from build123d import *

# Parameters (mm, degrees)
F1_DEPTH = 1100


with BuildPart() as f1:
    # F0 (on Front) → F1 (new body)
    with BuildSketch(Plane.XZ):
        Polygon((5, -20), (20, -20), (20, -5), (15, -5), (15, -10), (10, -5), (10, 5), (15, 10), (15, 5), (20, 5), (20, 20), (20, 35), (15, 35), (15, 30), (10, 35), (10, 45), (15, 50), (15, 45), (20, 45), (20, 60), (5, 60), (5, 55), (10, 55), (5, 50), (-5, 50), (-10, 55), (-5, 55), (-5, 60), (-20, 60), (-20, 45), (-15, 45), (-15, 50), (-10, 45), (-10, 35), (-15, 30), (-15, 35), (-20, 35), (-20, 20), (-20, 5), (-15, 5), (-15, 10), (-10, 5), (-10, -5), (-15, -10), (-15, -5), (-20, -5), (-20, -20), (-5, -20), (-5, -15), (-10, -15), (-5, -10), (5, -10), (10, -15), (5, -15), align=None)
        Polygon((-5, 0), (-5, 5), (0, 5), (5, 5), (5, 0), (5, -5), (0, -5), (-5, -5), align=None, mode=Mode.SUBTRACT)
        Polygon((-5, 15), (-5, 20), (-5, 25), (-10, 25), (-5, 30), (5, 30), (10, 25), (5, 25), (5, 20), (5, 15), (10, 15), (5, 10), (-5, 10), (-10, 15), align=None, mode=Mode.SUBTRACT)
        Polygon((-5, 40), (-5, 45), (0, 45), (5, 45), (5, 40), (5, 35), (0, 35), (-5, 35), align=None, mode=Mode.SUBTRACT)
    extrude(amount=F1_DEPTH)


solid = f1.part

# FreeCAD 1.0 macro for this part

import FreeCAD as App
import Part
import Sketcher

doc = App.newDocument("Part")
body = doc.addObject("PartDesign::Body", "Body")

sketch1 = doc.addObject("Sketcher::SketchObject", "Sketch")
body.addObject(sketch1)
sketch1.AttachmentSupport = (doc.XZ_Plane, [""])
sketch1.MapMode = "FlatFace"
sketch1.addGeometry([
    Part.LineSegment(App.Vector(5, -20, 0), App.Vector(20, -20, 0)),
    Part.LineSegment(App.Vector(20, -20, 0), App.Vector(20, -5, 0)),
    Part.LineSegment(App.Vector(20, -5, 0), App.Vector(15, -5, 0)),
    Part.LineSegment(App.Vector(15, -5, 0), App.Vector(15, -10, 0)),
    Part.LineSegment(App.Vector(15, -10, 0), App.Vector(10, -5, 0)),
    Part.LineSegment(App.Vector(10, -5, 0), App.Vector(10, 5, 0)),
    Part.LineSegment(App.Vector(10, 5, 0), App.Vector(15, 10, 0)),
    Part.LineSegment(App.Vector(15, 10, 0), App.Vector(15, 5, 0)),
    Part.LineSegment(App.Vector(15, 5, 0), App.Vector(20, 5, 0)),
    Part.LineSegment(App.Vector(20, 5, 0), App.Vector(20, 35, 0)),
    Part.LineSegment(App.Vector(20, 35, 0), App.Vector(15, 35, 0)),
    Part.LineSegment(App.Vector(15, 35, 0), App.Vector(15, 30, 0)),
    Part.LineSegment(App.Vector(15, 30, 0), App.Vector(10, 35, 0)),
    Part.LineSegment(App.Vector(10, 35, 0), App.Vector(10, 45, 0)),
    Part.LineSegment(App.Vector(10, 45, 0), App.Vector(15, 50, 0)),
    Part.LineSegment(App.Vector(15, 50, 0), App.Vector(15, 45, 0)),
    Part.LineSegment(App.Vector(15, 45, 0), App.Vector(20, 45, 0)),
    Part.LineSegment(App.Vector(20, 45, 0), App.Vector(20, 60, 0)),
    Part.LineSegment(App.Vector(20, 60, 0), App.Vector(5, 60, 0)),
    Part.LineSegment(App.Vector(5, 60, 0), App.Vector(5, 55, 0)),
    Part.LineSegment(App.Vector(5, 55, 0), App.Vector(10, 55, 0)),
    Part.LineSegment(App.Vector(10, 55, 0), App.Vector(5, 50, 0)),
    Part.LineSegment(App.Vector(5, 50, 0), App.Vector(-5, 50, 0)),
    Part.LineSegment(App.Vector(-5, 50, 0), App.Vector(-10, 55, 0)),
    Part.LineSegment(App.Vector(-10, 55, 0), App.Vector(-5, 55, 0)),
    Part.LineSegment(App.Vector(-5, 55, 0), App.Vector(-5, 60, 0)),
    Part.LineSegment(App.Vector(-5, 60, 0), App.Vector(-20, 60, 0)),
    Part.LineSegment(App.Vector(-20, 60, 0), App.Vector(-20, 45, 0)),
    Part.LineSegment(App.Vector(-20, 45, 0), App.Vector(-15, 45, 0)),
    Part.LineSegment(App.Vector(-15, 45, 0), App.Vector(-15, 50, 0)),
    Part.LineSegment(App.Vector(-15, 50, 0), App.Vector(-10, 45, 0)),
    Part.LineSegment(App.Vector(-10, 45, 0), App.Vector(-10, 35, 0)),
    Part.LineSegment(App.Vector(-10, 35, 0), App.Vector(-15, 30, 0)),
    Part.LineSegment(App.Vector(-15, 30, 0), App.Vector(-15, 35, 0)),
    Part.LineSegment(App.Vector(-15, 35, 0), App.Vector(-20, 35, 0)),
    Part.LineSegment(App.Vector(-20, 35, 0), App.Vector(-20, 5, 0)),
    Part.LineSegment(App.Vector(-20, 5, 0), App.Vector(-15, 5, 0)),
    Part.LineSegment(App.Vector(-15, 5, 0), App.Vector(-15, 10, 0)),
    Part.LineSegment(App.Vector(-15, 10, 0), App.Vector(-10, 5, 0)),
    Part.LineSegment(App.Vector(-10, 5, 0), App.Vector(-10, -5, 0)),
    Part.LineSegment(App.Vector(-10, -5, 0), App.Vector(-15, -10, 0)),
    Part.LineSegment(App.Vector(-15, -10, 0), App.Vector(-15, -5, 0)),
    Part.LineSegment(App.Vector(-15, -5, 0), App.Vector(-20, -5, 0)),
    Part.LineSegment(App.Vector(-20, -5, 0), App.Vector(-20, -20, 0)),
    Part.LineSegment(App.Vector(-20, -20, 0), App.Vector(-5, -20, 0)),
    Part.LineSegment(App.Vector(-5, -20, 0), App.Vector(-5, -15, 0)),
    Part.LineSegment(App.Vector(-5, -15, 0), App.Vector(-10, -15, 0)),
    Part.LineSegment(App.Vector(-10, -15, 0), App.Vector(-5, -10, 0)),
    Part.LineSegment(App.Vector(-5, -10, 0), App.Vector(5, -10, 0)),
    Part.LineSegment(App.Vector(5, -10, 0), App.Vector(10, -15, 0)),
    Part.LineSegment(App.Vector(10, -15, 0), App.Vector(5, -15, 0)),
    Part.LineSegment(App.Vector(5, -15, 0), App.Vector(5, -20, 0)),
    Part.LineSegment(App.Vector(-5, -5, 0), App.Vector(-5, 5, 0)),
    Part.LineSegment(App.Vector(-5, 5, 0), App.Vector(5, 5, 0)),
    Part.LineSegment(App.Vector(5, 5, 0), App.Vector(5, -5, 0)),
    Part.LineSegment(App.Vector(5, -5, 0), App.Vector(-5, -5, 0)),
    Part.LineSegment(App.Vector(-10, 15, 0), App.Vector(-5, 15, 0)),
    Part.LineSegment(App.Vector(-5, 15, 0), App.Vector(-5, 25, 0)),
    Part.LineSegment(App.Vector(-5, 25, 0), App.Vector(-10, 25, 0)),
    Part.LineSegment(App.Vector(-10, 25, 0), App.Vector(-5, 30, 0)),
    Part.LineSegment(App.Vector(-5, 30, 0), App.Vector(5, 30, 0)),
    Part.LineSegment(App.Vector(5, 30, 0), App.Vector(10, 25, 0)),
    Part.LineSegment(App.Vector(10, 25, 0), App.Vector(5, 25, 0)),
    Part.LineSegment(App.Vector(5, 25, 0), App.Vector(5, 15, 0)),
    Part.LineSegment(App.Vector(5, 15, 0), App.Vector(10, 15, 0)),
    Part.LineSegment(App.Vector(10, 15, 0), App.Vector(5, 10, 0)),
    Part.LineSegment(App.Vector(5, 10, 0), App.Vector(-5, 10, 0)),
    Part.LineSegment(App.Vector(-5, 10, 0), App.Vector(-10, 15, 0)),
    Part.LineSegment(App.Vector(-5, 35, 0), App.Vector(-5, 45, 0)),
    Part.LineSegment(App.Vector(-5, 45, 0), App.Vector(5, 45, 0)),
    Part.LineSegment(App.Vector(5, 45, 0), App.Vector(5, 35, 0)),
    Part.LineSegment(App.Vector(5, 35, 0), App.Vector(-5, 35, 0)),
], False)
sketch1.addConstraint([
    Sketcher.Constraint("Coincident", 0, 2, 1, 1),
    Sketcher.Constraint("Coincident", 1, 2, 2, 1),
    Sketcher.Constraint("Coincident", 2, 2, 3, 1),
    Sketcher.Constraint("Coincident", 3, 2, 4, 1),
    Sketcher.Constraint("Coincident", 4, 2, 5, 1),
    Sketcher.Constraint("Coincident", 5, 2, 6, 1),
    Sketcher.Constraint("Coincident", 6, 2, 7, 1),
    Sketcher.Constraint("Coincident", 7, 2, 8, 1),
    Sketcher.Constraint("Coincident", 8, 2, 9, 1),
    Sketcher.Constraint("Coincident", 9, 2, 10, 1),
    Sketcher.Constraint("Coincident", 10, 2, 11, 1),
    Sketcher.Constraint("Coincident", 11, 2, 12, 1),
    Sketcher.Constraint("Coincident", 12, 2, 13, 1),
    Sketcher.Constraint("Coincident", 13, 2, 14, 1),
    Sketcher.Constraint("Coincident", 14, 2, 15, 1),
    Sketcher.Constraint("Coincident", 15, 2, 16, 1),
    Sketcher.Constraint("Coincident", 16, 2, 17, 1),
    Sketcher.Constraint("Coincident", 17, 2, 18, 1),
    Sketcher.Constraint("Coincident", 18, 2, 19, 1),
    Sketcher.Constraint("Coincident", 19, 2, 20, 1),
    Sketcher.Constraint("Coincident", 20, 2, 21, 1),
    Sketcher.Constraint("Coincident", 21, 2, 22, 1),
    Sketcher.Constraint("Coincident", 22, 2, 23, 1),
    Sketcher.Constraint("Coincident", 23, 2, 24, 1),
    Sketcher.Constraint("Coincident", 24, 2, 25, 1),
    Sketcher.Constraint("Coincident", 25, 2, 26, 1),
    Sketcher.Constraint("Coincident", 26, 2, 27, 1),
    Sketcher.Constraint("Coincident", 27, 2, 28, 1),
    Sketcher.Constraint("Coincident", 28, 2, 29, 1),
    Sketcher.Constraint("Coincident", 29, 2, 30, 1),
    Sketcher.Constraint("Coincident", 30, 2, 31, 1),
    Sketcher.Constraint("Coincident", 31, 2, 32, 1),
    Sketcher.Constraint("Coincident", 32, 2, 33, 1),
    Sketcher.Constraint("Coincident", 33, 2, 34, 1),
    Sketcher.Constraint("Coincident", 34, 2, 35, 1),
    Sketcher.Constraint("Coincident", 35, 2, 36, 1),
    Sketcher.Constraint("Coincident", 36, 2, 37, 1),
    Sketcher.Constraint("Coincident", 37, 2, 38, 1),
    Sketcher.Constraint("Coincident", 38, 2, 39, 1),
    Sketcher.Constraint("Coincident", 39, 2, 40, 1),
    Sketcher.Constraint("Coincident", 40, 2, 41, 1),
    Sketcher.Constraint("Coincident", 41, 2, 42, 1),
    Sketcher.Constraint("Coincident", 42, 2, 43, 1),
    Sketcher.Constraint("Coincident", 43, 2, 44, 1),
    Sketcher.Constraint("Coincident", 44, 2, 45, 1),
    Sketcher.Constraint("Coincident", 45, 2, 46, 1),
    Sketcher.Constraint("Coincident", 46, 2, 47, 1),
    Sketcher.Constraint("Coincident", 47, 2, 48, 1),
    Sketcher.Constraint("Coincident", 48, 2, 49, 1),
    Sketcher.Constraint("Coincident", 49, 2, 50, 1),
    Sketcher.Constraint("Coincident", 50, 2, 51, 1),
    Sketcher.Constraint("Coincident", 51, 2, 0, 1),
    Sketcher.Constraint("Coincident", 52, 2, 53, 1),
    Sketcher.Constraint("Coincident", 53, 2, 54, 1),
    Sketcher.Constraint("Coincident", 54, 2, 55, 1),
    Sketcher.Constraint("Coincident", 55, 2, 52, 1),
    Sketcher.Constraint("Coincident", 56, 2, 57, 1),
    Sketcher.Constraint("Coincident", 57, 2, 58, 1),
    Sketcher.Constraint("Coincident", 58, 2, 59, 1),
    Sketcher.Constraint("Coincident", 59, 2, 60, 1),
    Sketcher.Constraint("Coincident", 60, 2, 61, 1),
    Sketcher.Constraint("Coincident", 61, 2, 62, 1),
    Sketcher.Constraint("Coincident", 62, 2, 63, 1),
    Sketcher.Constraint("Coincident", 63, 2, 64, 1),
    Sketcher.Constraint("Coincident", 64, 2, 65, 1),
    Sketcher.Constraint("Coincident", 65, 2, 66, 1),
    Sketcher.Constraint("Coincident", 66, 2, 67, 1),
    Sketcher.Constraint("Coincident", 67, 2, 56, 1),
    Sketcher.Constraint("Coincident", 68, 2, 69, 1),
    Sketcher.Constraint("Coincident", 69, 2, 70, 1),
    Sketcher.Constraint("Coincident", 70, 2, 71, 1),
    Sketcher.Constraint("Coincident", 71, 2, 68, 1),
    Sketcher.Constraint("Horizontal", 0),
    Sketcher.Constraint("Vertical", 1),
    Sketcher.Constraint("Horizontal", 2),
    Sketcher.Constraint("Vertical", 3),
    Sketcher.Constraint("Vertical", 5),
    Sketcher.Constraint("Vertical", 7),
    Sketcher.Constraint("Horizontal", 8),
    Sketcher.Constraint("Vertical", 9),
    Sketcher.Constraint("Horizontal", 10),
    Sketcher.Constraint("Vertical", 11),
    Sketcher.Constraint("Vertical", 13),
    Sketcher.Constraint("Vertical", 15),
    Sketcher.Constraint("Horizontal", 16),
    Sketcher.Constraint("Vertical", 17),
    Sketcher.Constraint("Horizontal", 18),
    Sketcher.Constraint("Vertical", 19),
    Sketcher.Constraint("Horizontal", 20),
    Sketcher.Constraint("Horizontal", 22),
    Sketcher.Constraint("Horizontal", 24),
    Sketcher.Constraint("Vertical", 25),
    Sketcher.Constraint("Horizontal", 26),
    Sketcher.Constraint("Vertical", 27),
    Sketcher.Constraint("Horizontal", 28),
    Sketcher.Constraint("Vertical", 29),
    Sketcher.Constraint("Vertical", 31),
    Sketcher.Constraint("Vertical", 33),
    Sketcher.Constraint("Horizontal", 34),
    Sketcher.Constraint("Vertical", 35),
    Sketcher.Constraint("Horizontal", 36),
    Sketcher.Constraint("Vertical", 37),
    Sketcher.Constraint("Vertical", 39),
    Sketcher.Constraint("Vertical", 41),
    Sketcher.Constraint("Horizontal", 42),
    Sketcher.Constraint("Vertical", 43),
    Sketcher.Constraint("Horizontal", 44),
    Sketcher.Constraint("Vertical", 45),
    Sketcher.Constraint("Horizontal", 46),
    Sketcher.Constraint("Horizontal", 48),
    Sketcher.Constraint("Horizontal", 50),
    Sketcher.Constraint("Vertical", 51),
    Sketcher.Constraint("Vertical", 52),
    Sketcher.Constraint("Horizontal", 53),
    Sketcher.Constraint("Vertical", 54),
    Sketcher.Constraint("Horizontal", 55),
    Sketcher.Constraint("Horizontal", 56),
    Sketcher.Constraint("Vertical", 57),
    Sketcher.Constraint("Horizontal", 58),
    Sketcher.Constraint("Horizontal", 60),
    Sketcher.Constraint("Horizontal", 62),
    Sketcher.Constraint("Vertical", 63),
    Sketcher.Constraint("Horizontal", 64),
    Sketcher.Constraint("Horizontal", 66),
    Sketcher.Constraint("Vertical", 68),
    Sketcher.Constraint("Horizontal", 69),
    Sketcher.Constraint("Vertical", 70),
    Sketcher.Constraint("Horizontal", 71),
    Sketcher.Constraint("Symmetric", 1, 2, 35, 2, -1, 1),
    Sketcher.Constraint("Symmetric", 3, 2, 37, 2, -1, 1),
    Sketcher.Constraint("Symmetric", 4, 2, 38, 2, -1, 1),
    Sketcher.Constraint("Symmetric", 6, 2, 40, 2, -1, 1),
    Sketcher.Constraint("Symmetric", 8, 2, 42, 2, -1, 1),
    Sketcher.Constraint("Symmetric", 52, 2, 54, 2, -1, 1),
    Sketcher.Constraint("Symmetric", 50, 2, 56, 2, -1, 1),
    Sketcher.Constraint("Symmetric", 45, 2, 63, 2, -1, 1),
    Sketcher.Constraint("Symmetric", 47, 2, 65, 2, -1, 1),
    Sketcher.Constraint("Symmetric", 20, 2, 23, 2, -2),
    Sketcher.Constraint("Symmetric", 18, 2, 25, 2, -2),
    Sketcher.Constraint("Symmetric", 16, 2, 27, 2, -2),
    Sketcher.Constraint("Symmetric", 14, 2, 29, 2, -2),
    Sketcher.Constraint("Symmetric", 13, 2, 30, 2, -2),
    Sketcher.Constraint("Symmetric", 11, 2, 32, 2, -2),
    Sketcher.Constraint("Symmetric", 9, 2, 34, 2, -2),
    Sketcher.Constraint("Symmetric", 7, 2, 36, 2, -2),
    Sketcher.Constraint("Symmetric", 46, 2, 49, 2, -2),
    Sketcher.Constraint("Symmetric", 44, 2, 51, 2, -2),
    Sketcher.Constraint("Symmetric", 58, 2, 61, 2, -2),
    Sketcher.Constraint("Perpendicular", 4, 6),
    Sketcher.Constraint("Perpendicular", 6, 12),
    Sketcher.Constraint("Perpendicular", 12, 14),
    Sketcher.Constraint("Parallel", 14, 21),
    Sketcher.Constraint("Perpendicular", 21, 23),
    Sketcher.Constraint("Parallel", 23, 30),
    Sketcher.Constraint("Perpendicular", 30, 32),
    Sketcher.Constraint("Perpendicular", 38, 40),
    Sketcher.Constraint("Parallel", 40, 47),
    Sketcher.Constraint("Perpendicular", 47, 49),
    Sketcher.Constraint("Perpendicular", 49, 59),
    Sketcher.Constraint("Perpendicular", 59, 61),
    Sketcher.Constraint("Perpendicular", 61, 65),
    Sketcher.Constraint("Perpendicular", 65, 67),
    Sketcher.Constraint("Horizontal", 2, 2, 4, 2),
    Sketcher.Constraint("Horizontal", 5, 2, 7, 2),
    Sketcher.Constraint("Horizontal", 10, 2, 12, 2),
    Sketcher.Constraint("Horizontal", 13, 2, 15, 2),
    Sketcher.Constraint("Horizontal", 14, 2, 21, 2),
    Sketcher.Constraint("Horizontal", 40, 2, 47, 2),
    Sketcher.Constraint("Horizontal", 38, 2, 52, 2),
    Sketcher.Constraint("Horizontal", 32, 2, 59, 2),
    Sketcher.Constraint("Horizontal", 30, 2, 68, 2),
    Sketcher.Constraint("Horizontal", 34, 2, 70, 2),
    Sketcher.Constraint("Vertical", 7, 2, 10, 2),
    Sketcher.Constraint("Vertical", 5, 2, 12, 2),
    Sketcher.Constraint("Vertical", 11, 2, 14, 2),
    Sketcher.Constraint("Vertical", 9, 2, 16, 2),
    Sketcher.Constraint("Vertical", 13, 2, 20, 2),
    Sketcher.Constraint("Vertical", 19, 2, 21, 2),
    Sketcher.Constraint("Vertical", 25, 2, 44, 2),
    Sketcher.Constraint("Vertical", 39, 2, 46, 2),
    Sketcher.Constraint("Vertical", 45, 2, 47, 2),
    Sketcher.Constraint("Vertical", 47, 2, 52, 2),
    Sketcher.Constraint("Vertical", 46, 2, 58, 2),
    Sketcher.Constraint("Vertical", 57, 2, 59, 2),
    Sketcher.Constraint("Vertical", 59, 2, 66, 2),
    Sketcher.Constraint("Vertical", 66, 2, 68, 2),
    Sketcher.Constraint("Vertical", 65, 2, 69, 2),
    Sketcher.Constraint("Equal", 16, 20),
    Sketcher.Constraint("Equal", 44, 1),
    Sketcher.Constraint("Equal", 64, 3),
    Sketcher.Constraint("Equal", 71, 5),
    Sketcher.Constraint("Equal", 5, 13),
    Sketcher.Constraint("Equal", 1, 17),
    Sketcher.Constraint("Equal", 54, 57),
    Sketcher.Constraint("DistanceX", 0, 1, 0, 2, 15.0),
    Sketcher.Constraint("DistanceX", 22, 2, 22, 1, 10.0),
])
pad1 = doc.addObject("PartDesign::Pad", "Pad")
body.addObject(pad1)
pad1.Profile = sketch1
pad1.Length = 1100

doc.recompute()
